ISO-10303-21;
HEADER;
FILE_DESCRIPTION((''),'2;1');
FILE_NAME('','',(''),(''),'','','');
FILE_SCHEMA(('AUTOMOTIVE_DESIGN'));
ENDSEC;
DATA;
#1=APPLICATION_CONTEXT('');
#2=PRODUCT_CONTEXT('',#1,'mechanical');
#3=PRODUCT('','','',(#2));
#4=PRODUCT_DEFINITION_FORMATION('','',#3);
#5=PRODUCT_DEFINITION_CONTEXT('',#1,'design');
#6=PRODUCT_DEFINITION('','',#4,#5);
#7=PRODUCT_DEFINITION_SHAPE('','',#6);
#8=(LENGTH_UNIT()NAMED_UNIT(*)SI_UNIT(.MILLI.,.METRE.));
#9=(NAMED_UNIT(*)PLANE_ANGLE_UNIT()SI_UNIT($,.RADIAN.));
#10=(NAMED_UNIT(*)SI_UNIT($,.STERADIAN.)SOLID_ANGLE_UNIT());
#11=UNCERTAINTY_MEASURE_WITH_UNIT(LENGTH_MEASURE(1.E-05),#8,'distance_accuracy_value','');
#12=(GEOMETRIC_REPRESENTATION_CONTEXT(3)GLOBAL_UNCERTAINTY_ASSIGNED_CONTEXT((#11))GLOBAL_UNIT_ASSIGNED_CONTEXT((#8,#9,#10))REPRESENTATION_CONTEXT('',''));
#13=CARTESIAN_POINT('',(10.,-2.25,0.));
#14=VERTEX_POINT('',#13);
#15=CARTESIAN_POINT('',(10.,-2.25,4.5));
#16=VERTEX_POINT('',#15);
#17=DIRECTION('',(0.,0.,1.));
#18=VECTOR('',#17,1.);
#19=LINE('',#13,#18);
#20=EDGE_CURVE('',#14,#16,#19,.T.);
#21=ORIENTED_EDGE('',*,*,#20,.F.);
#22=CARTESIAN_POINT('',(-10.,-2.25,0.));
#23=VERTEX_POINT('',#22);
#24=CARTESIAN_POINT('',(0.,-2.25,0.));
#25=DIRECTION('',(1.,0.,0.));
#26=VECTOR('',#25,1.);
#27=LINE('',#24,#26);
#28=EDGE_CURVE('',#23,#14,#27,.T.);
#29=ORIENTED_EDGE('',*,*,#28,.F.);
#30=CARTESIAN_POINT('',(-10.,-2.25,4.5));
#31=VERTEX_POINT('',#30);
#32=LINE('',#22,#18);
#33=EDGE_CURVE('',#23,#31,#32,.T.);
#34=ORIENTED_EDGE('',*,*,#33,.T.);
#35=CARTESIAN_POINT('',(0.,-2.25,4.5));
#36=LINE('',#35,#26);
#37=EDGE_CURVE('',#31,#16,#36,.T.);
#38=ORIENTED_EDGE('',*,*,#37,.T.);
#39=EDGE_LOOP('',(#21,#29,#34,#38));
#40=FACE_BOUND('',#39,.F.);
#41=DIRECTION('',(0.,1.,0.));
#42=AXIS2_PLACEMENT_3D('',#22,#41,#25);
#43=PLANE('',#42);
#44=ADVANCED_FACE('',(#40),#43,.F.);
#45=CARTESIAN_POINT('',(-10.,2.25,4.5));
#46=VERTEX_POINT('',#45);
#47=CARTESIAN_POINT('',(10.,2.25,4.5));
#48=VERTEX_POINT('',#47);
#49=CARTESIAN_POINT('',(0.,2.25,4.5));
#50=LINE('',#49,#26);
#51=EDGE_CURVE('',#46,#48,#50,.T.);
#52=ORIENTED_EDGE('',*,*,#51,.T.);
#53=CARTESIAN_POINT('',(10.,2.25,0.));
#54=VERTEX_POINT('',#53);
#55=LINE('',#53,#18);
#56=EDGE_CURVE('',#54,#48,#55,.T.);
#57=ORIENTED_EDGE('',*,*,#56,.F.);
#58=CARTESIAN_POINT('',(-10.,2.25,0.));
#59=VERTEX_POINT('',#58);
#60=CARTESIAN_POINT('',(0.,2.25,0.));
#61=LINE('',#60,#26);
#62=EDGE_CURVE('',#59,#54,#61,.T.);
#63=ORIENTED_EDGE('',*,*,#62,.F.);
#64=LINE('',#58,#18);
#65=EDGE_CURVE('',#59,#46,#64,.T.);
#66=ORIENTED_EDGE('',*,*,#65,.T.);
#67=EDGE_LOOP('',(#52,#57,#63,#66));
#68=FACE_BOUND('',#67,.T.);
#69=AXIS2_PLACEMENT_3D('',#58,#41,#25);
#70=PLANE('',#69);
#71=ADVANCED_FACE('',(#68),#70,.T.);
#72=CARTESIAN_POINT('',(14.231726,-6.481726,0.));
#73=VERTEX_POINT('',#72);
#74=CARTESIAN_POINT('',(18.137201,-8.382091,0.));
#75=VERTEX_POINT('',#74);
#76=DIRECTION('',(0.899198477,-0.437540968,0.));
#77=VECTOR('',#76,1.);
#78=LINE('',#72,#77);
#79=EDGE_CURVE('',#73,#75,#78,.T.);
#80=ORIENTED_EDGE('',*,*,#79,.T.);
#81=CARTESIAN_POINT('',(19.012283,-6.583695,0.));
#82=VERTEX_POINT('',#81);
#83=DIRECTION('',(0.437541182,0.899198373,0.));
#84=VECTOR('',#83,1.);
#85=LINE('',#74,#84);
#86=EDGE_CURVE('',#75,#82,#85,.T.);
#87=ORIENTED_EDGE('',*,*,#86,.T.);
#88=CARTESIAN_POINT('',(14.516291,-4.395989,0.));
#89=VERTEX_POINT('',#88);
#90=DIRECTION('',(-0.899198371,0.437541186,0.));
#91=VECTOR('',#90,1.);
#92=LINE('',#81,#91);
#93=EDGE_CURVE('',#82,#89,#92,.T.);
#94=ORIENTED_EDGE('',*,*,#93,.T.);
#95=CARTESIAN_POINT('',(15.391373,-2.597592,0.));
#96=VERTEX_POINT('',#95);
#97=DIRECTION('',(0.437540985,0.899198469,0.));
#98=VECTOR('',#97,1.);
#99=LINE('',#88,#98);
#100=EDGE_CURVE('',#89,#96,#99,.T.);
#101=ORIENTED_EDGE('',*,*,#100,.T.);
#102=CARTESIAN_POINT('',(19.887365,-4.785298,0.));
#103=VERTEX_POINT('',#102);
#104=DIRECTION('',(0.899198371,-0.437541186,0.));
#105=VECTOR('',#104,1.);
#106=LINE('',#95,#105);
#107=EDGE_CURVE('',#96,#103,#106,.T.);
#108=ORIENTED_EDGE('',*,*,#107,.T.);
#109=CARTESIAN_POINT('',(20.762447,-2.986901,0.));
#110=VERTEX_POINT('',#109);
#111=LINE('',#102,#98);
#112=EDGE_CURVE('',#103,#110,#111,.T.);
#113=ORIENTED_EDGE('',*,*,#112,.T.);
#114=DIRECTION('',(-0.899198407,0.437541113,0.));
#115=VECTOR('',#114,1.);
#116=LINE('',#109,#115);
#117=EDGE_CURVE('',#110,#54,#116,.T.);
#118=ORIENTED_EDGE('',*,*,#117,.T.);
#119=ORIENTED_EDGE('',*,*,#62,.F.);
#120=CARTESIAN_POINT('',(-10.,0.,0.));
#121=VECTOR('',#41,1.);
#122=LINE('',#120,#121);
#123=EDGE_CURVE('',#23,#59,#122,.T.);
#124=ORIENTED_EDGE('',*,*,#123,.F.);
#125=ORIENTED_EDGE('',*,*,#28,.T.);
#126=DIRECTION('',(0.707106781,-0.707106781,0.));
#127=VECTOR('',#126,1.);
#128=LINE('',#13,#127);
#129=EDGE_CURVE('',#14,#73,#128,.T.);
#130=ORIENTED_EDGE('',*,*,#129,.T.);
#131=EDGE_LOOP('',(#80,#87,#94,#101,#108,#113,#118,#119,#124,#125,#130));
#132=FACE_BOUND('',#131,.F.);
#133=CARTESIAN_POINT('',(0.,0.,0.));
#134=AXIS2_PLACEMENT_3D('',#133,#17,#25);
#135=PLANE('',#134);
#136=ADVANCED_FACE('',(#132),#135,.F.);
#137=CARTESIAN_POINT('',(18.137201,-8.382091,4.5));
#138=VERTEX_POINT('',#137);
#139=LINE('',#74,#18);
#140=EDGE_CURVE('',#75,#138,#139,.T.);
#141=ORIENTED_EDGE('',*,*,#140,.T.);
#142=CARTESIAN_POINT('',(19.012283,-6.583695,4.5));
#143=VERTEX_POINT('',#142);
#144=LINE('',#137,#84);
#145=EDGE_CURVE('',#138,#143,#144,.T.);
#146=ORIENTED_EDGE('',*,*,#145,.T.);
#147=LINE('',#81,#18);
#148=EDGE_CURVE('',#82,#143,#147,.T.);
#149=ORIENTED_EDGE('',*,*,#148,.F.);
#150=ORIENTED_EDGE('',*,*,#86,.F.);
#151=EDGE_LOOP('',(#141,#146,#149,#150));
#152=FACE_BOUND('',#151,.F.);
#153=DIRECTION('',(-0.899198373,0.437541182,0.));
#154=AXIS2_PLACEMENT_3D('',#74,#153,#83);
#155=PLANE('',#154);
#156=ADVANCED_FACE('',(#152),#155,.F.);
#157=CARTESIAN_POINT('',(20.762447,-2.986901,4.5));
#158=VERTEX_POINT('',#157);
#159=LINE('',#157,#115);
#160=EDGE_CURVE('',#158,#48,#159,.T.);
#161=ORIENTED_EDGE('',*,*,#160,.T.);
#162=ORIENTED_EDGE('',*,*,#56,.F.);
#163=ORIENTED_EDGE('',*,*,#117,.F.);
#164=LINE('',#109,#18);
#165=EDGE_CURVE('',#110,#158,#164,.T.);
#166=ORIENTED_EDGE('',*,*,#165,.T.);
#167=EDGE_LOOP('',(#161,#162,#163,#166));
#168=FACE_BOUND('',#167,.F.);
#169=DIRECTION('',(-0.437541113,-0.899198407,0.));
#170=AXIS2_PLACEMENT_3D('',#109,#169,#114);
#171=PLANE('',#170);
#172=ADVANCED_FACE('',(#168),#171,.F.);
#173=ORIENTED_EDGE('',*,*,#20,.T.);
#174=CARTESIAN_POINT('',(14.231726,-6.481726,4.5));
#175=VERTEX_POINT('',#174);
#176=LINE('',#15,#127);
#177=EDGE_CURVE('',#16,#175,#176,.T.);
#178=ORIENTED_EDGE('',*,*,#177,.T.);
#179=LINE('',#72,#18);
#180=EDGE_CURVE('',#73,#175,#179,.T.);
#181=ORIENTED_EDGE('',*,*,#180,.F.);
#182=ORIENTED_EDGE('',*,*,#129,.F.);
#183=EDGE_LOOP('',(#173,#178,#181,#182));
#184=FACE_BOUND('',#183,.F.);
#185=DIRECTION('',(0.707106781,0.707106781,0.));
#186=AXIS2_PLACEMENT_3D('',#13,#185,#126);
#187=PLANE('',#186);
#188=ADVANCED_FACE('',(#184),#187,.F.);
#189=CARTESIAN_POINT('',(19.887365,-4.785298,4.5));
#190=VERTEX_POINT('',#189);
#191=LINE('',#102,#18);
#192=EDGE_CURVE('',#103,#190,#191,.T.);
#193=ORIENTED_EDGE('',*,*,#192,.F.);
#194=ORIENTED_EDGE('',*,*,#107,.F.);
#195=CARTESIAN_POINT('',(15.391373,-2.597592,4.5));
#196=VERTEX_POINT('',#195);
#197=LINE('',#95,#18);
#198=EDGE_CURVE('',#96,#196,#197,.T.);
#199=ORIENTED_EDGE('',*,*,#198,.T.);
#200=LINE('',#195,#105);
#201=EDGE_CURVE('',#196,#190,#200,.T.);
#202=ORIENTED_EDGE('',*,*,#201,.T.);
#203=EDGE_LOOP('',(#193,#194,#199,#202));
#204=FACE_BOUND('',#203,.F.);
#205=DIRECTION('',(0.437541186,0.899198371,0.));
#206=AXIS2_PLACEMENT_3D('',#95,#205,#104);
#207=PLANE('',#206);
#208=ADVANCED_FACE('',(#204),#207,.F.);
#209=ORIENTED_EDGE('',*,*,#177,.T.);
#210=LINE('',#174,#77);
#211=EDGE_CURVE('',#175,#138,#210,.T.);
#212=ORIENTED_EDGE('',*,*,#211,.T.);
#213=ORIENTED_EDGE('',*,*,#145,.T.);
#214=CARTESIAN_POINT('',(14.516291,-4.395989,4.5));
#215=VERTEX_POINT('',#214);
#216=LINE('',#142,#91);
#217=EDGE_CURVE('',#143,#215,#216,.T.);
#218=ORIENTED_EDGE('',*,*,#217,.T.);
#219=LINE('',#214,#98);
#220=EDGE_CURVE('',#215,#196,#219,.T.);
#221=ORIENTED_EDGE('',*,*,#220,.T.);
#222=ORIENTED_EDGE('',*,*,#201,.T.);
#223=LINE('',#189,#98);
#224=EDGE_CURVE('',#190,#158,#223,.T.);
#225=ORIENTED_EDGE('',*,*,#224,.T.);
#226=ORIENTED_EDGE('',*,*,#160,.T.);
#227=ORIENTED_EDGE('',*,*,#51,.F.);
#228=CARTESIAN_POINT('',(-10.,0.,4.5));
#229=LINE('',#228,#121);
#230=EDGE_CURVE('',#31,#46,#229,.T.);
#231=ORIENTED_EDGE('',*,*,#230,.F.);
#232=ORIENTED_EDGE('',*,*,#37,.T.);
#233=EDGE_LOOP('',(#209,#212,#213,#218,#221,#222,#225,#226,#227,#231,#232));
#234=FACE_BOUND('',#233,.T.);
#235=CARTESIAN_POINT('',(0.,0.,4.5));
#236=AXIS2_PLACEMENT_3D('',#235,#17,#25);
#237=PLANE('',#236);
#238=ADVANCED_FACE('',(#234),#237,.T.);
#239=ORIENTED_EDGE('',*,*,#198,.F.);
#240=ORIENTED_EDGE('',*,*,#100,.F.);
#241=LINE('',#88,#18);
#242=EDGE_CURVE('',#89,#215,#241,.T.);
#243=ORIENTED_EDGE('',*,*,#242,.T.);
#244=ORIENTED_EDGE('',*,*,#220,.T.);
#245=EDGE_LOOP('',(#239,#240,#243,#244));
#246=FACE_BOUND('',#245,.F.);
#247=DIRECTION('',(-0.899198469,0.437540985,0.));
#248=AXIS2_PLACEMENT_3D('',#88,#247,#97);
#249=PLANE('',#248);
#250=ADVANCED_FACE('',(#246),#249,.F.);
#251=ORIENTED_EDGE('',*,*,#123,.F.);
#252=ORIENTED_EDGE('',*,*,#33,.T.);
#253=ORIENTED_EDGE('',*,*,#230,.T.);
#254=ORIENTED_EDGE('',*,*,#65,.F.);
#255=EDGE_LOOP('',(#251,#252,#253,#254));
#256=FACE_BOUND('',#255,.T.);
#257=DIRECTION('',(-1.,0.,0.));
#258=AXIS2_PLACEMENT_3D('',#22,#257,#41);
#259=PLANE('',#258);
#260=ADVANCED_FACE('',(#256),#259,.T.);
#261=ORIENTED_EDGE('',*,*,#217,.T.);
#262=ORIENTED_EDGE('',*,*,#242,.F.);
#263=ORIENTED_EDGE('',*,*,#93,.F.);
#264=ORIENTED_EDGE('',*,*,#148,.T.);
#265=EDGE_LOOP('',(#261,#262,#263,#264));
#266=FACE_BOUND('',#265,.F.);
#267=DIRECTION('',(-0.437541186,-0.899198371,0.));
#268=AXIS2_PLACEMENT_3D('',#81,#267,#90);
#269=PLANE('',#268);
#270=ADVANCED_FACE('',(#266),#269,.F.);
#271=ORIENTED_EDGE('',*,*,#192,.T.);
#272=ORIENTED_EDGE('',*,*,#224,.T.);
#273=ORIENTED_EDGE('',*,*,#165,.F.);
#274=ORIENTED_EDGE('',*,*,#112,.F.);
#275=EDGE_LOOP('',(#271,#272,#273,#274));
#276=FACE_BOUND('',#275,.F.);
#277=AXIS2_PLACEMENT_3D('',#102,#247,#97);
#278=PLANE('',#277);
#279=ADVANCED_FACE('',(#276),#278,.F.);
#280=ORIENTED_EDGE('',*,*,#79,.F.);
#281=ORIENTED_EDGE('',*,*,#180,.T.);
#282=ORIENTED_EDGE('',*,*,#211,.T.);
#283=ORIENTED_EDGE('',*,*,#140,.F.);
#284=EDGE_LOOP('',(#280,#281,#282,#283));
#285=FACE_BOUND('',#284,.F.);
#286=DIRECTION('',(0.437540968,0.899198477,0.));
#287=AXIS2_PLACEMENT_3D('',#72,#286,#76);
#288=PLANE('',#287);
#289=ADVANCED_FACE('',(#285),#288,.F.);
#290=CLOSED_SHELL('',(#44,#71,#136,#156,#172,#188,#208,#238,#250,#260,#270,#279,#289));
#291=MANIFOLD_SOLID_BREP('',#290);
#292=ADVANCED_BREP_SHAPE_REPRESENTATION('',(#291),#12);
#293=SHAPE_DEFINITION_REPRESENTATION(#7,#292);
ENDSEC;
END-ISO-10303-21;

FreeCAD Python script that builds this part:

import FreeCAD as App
import Part
import Sketcher

V = App.Vector
Q = App.Units.Quantity

doc = App.newDocument("Part")
params = doc.addObject("Spreadsheet::Sheet", "Params")
for row, (alias, value) in enumerate([
    ("sketch1_width", "20 mm"),
    ("sketch1_length", "1.999999 mm"),
    ("sketch1_length2", "5 mm"),
    ("sketch1_height", "4.5 mm"),
    ("pad1_length", "4.5 mm"),
], start=1):
    params.set(f"A{row}", alias)
    params.set(f"B{row}", "=" + value)
    params.setAlias(f"B{row}", alias)

body = doc.addObject("PartDesign::Body", "Body")

# Sketch on XY plane
sketch1 = body.newObject("Sketcher::SketchObject", "Sketch")
sketch1.AttachmentSupport = (doc.getObject("XY_Plane"), [""])
sketch1.MapMode = "FlatFace"
sketch1.addGeometry(Part.LineSegment(V(-10, 2.2, 0), V(-10, -2.2, 0)), False)
sketch1.addGeometry(Part.LineSegment(V(-10, -2.2, 0), V(10, -2.2, 0)), False)
sketch1.addGeometry(Part.LineSegment(V(10, -2.2, 0), V(14.2, -6.5, 0)), False)
sketch1.addGeometry(Part.LineSegment(V(14.2, -6.5, 0), V(18.1, -8.4, 0)), False)
sketch1.addGeometry(Part.LineSegment(V(18.1, -8.4, 0), V(19, -6.6, 0)), False)
sketch1.addGeometry(Part.LineSegment(V(19, -6.6, 0), V(14.5, -4.4, 0)), False)
sketch1.addGeometry(Part.LineSegment(V(14.5, -4.4, 0), V(15.4, -2.6, 0)), False)
sketch1.addGeometry(Part.LineSegment(V(15.4, -2.6, 0), V(19.9, -4.8, 0)), False)
sketch1.addGeometry(Part.LineSegment(V(19.9, -4.8, 0), V(20.8, -3, 0)), False)
sketch1.addGeometry(Part.LineSegment(V(20.8, -3, 0), V(10, 2.2, 0)), False)
sketch1.addGeometry(Part.LineSegment(V(10, 2.2, 0), V(-10, 2.2, 0)), False)
sketch1.addConstraint(Sketcher.Constraint("Coincident", 0, 2, 1, 1))
sketch1.addConstraint(Sketcher.Constraint("Coincident", 1, 2, 2, 1))
sketch1.addConstraint(Sketcher.Constraint("Coincident", 2, 2, 3, 1))
sketch1.addConstraint(Sketcher.Constraint("Coincident", 3, 2, 4, 1))
sketch1.addConstraint(Sketcher.Constraint("Coincident", 4, 2, 5, 1))
sketch1.addConstraint(Sketcher.Constraint("Coincident", 5, 2, 6, 1))
sketch1.addConstraint(Sketcher.Constraint("Coincident", 6, 2, 7, 1))
sketch1.addConstraint(Sketcher.Constraint("Coincident", 7, 2, 8, 1))
sketch1.addConstraint(Sketcher.Constraint("Coincident", 8, 2, 9, 1))
sketch1.addConstraint(Sketcher.Constraint("Coincident", 9, 2, 10, 1))
sketch1.addConstraint(Sketcher.Constraint("Coincident", 10, 2, 0, 1))
sketch1.addConstraint(Sketcher.Constraint("Vertical", 0))
sketch1.addConstraint(Sketcher.Constraint("Horizontal", 1))
sketch1.addConstraint(Sketcher.Constraint("Horizontal", 10))
sketch1.addConstraint(Sketcher.Constraint("Symmetric", 0, 2, 9, 2, -1, 1))
sketch1.addConstraint(Sketcher.Constraint("Perpendicular", 3, 4))
sketch1.addConstraint(Sketcher.Constraint("Perpendicular", 4, 5))
sketch1.addConstraint(Sketcher.Constraint("Perpendicular", 5, 6))
sketch1.addConstraint(Sketcher.Constraint("Perpendicular", 6, 7))
sketch1.addConstraint(Sketcher.Constraint("Perpendicular", 7, 8))
sketch1.addConstraint(Sketcher.Constraint("Perpendicular", 8, 9))
sketch1.addConstraint(Sketcher.Constraint("Vertical", 1, 2, 9, 2))
sketch1.addConstraint(Sketcher.Constraint("Equal", 4, 6))
sketch1.addConstraint(Sketcher.Constraint("Equal", 5, 7))
sketch1.addConstraint(Sketcher.Constraint("Equal", 6, 8))
sketch1.addConstraint(Sketcher.Constraint("DistanceX", 1, 1, 1, 2, 20.0))
sketch1.addConstraint(Sketcher.Constraint("Angle", 2, Q("-45 deg")))
sketch1.addConstraint(Sketcher.Constraint("Distance", 4, 1.999999))
sketch1.addConstraint(Sketcher.Constraint("Distance", 5, 5.0))
sketch1.addConstraint(Sketcher.Constraint("DistanceY", 0, 2, 0, 1, 4.5))
sketch1.addConstraint(Sketcher.Constraint("DistanceX", -1, 1, 3, 2, 18.137201))
sketch1.addConstraint(Sketcher.Constraint("DistanceY", 8, 2, -1, 1, 2.986901))
sketch1.setExpression("Constraints[25]", "Params.sketch1_width")
sketch1.setExpression("Constraints[27]", "Params.sketch1_length")
sketch1.setExpression("Constraints[28]", "Params.sketch1_length2")
sketch1.setExpression("Constraints[29]", "Params.sketch1_height")
pad1 = body.newObject("PartDesign::Pad", "Pad")
pad1.Profile = sketch1
pad1.setExpression("Length", "Params.pad1_length")

doc.recompute()
